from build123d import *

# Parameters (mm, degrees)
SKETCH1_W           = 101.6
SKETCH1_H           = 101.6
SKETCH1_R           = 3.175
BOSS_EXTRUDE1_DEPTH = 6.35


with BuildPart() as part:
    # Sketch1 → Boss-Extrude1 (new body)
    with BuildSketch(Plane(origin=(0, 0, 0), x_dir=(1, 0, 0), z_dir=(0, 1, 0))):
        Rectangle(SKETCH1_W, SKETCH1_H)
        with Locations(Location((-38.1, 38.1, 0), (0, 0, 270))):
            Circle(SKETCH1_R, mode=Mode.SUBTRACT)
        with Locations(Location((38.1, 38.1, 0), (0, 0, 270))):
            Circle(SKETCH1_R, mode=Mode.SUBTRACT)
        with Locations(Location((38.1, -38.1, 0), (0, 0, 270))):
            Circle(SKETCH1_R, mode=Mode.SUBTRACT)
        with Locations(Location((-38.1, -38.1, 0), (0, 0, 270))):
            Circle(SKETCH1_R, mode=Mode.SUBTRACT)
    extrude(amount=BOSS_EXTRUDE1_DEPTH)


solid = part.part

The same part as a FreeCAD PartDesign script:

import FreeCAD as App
import Part
import Sketcher

V = App.Vector
Q = App.Units.Quantity


def add_polygon(sketch, points):
    """Adds a closed chain of lines whose ends are joined by coincident constraints."""
    first, n = sketch.GeometryCount, len(points)
    for a, b in zip(points, points[1:] + points[:1]):
        sketch.addGeometry(Part.LineSegment(App.Vector(*a, 0), App.Vector(*b, 0)), False)
    for i in range(n):
        sketch.addConstraint(Sketcher.Constraint("Coincident", first + i, 2, first + (i + 1) % n, 1))

doc = App.newDocument("Part")
body = doc.addObject("PartDesign::Body", "Body")

sketch1 = body.newObject("Sketcher::SketchObject", "Sketch")
sketch1.AttachmentSupport = (doc.getObject("XZ_Plane"), [""])
sketch1.MapMode = "FlatFace"
add_polygon(sketch1, [(-50.8, -50.8), (-50.8, 50.8), (50.8, 50.8), (50.8, -50.8)])
sketch1.addGeometry(Part.Circle(V(-38.1, 38.1, 0), V(0, 0, 1), 3.2), False)
sketch1.addGeometry(Part.Circle(V(38.1, 38.1, 0), V(0, 0, 1), 3.2), False)
sketch1.addGeometry(Part.Circle(V(-38.1, -38.1, 0), V(0, 0, 1), 3.2), False)
sketch1.addGeometry(Part.Circle(V(38.1, -38.1, 0), V(0, 0, 1), 3.2), False)
sketch1.addConstraint(Sketcher.Constraint("Vertical", 0))
sketch1.addConstraint(Sketcher.Constraint("Horizontal", 1))
sketch1.addConstraint(Sketcher.Constraint("Vertical", 2))
sketch1.addConstraint(Sketcher.Constraint("Horizontal", 3))
sketch1.addConstraint(Sketcher.Constraint("Equal", 4, 5))
sketch1.addConstraint(Sketcher.Constraint("Equal", 5, 6))
sketch1.addConstraint(Sketcher.Constraint("Equal", 6, 7))
sketch1.addConstraint(Sketcher.Constraint("Symmetric", 5, 3, 6, 3, -1, 1))
sketch1.addConstraint(Sketcher.Constraint("Symmetric", 4, 3, 7, 3, -1, 1))
sketch1.addConstraint(Sketcher.Constraint("Symmetric", 0, 2, 2, 2, -1, 1))
sketch1.addConstraint(Sketcher.Constraint("Symmetric", 4, 3, 5, 3, -2))
sketch1.addConstraint(Sketcher.Constraint("Equal", 3, 0))
sketch1.addConstraint(Sketcher.Constraint("Diameter", 4, Q("0.25 in")))
sketch1.addConstraint(Sketcher.Constraint("DistanceX", 1, 1, 1, 2, Q("4 in")))
sketch1.addConstraint(Sketcher.Constraint("DistanceX", 4, 3, 5, 3, Q("3 in")))
sketch1.addConstraint(Sketcher.Constraint("DistanceY", 6, 3, 4, 3, Q("3 in")))
pad1 = body.newObject("PartDesign::Pad", "Pad")
pad1.Profile = sketch1
pad1.Length = Q("0.25 in")
pad1.Reversed = True

doc.recompute()
